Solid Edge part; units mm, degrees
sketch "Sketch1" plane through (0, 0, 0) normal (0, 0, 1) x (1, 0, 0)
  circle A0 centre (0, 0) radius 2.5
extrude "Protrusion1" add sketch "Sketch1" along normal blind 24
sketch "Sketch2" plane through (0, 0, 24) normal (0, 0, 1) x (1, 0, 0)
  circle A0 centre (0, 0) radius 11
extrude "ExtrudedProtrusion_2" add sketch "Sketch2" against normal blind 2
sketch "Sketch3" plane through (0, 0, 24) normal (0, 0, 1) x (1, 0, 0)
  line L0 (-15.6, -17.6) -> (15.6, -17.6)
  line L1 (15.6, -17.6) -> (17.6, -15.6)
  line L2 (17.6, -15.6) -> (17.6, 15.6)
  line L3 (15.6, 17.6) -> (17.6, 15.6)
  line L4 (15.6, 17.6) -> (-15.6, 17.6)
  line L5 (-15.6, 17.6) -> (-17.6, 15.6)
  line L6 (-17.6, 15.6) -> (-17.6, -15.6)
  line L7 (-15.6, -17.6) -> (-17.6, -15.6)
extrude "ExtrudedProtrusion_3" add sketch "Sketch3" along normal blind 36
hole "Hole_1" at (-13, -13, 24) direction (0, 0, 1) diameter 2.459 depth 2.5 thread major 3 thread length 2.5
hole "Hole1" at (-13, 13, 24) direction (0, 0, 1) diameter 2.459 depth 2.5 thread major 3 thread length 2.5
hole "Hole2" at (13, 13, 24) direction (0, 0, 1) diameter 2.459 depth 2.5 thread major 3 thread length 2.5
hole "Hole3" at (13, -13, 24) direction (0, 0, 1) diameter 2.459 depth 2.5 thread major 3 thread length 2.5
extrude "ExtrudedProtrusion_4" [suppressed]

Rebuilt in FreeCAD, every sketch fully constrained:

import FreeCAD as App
import Part
import Sketcher


def add_polygon(sketch, points):
    """Adds a closed chain of lines whose ends are joined by coincident constraints."""
    first, n = sketch.GeometryCount, len(points)
    for a, b in zip(points, points[1:] + points[:1]):
        sketch.addGeometry(Part.LineSegment(App.Vector(*a, 0), App.Vector(*b, 0)), False)
    for i in range(n):
        sketch.addConstraint(Sketcher.Constraint("Coincident", first + i, 2, first + (i + 1) % n, 1))

doc = App.newDocument("Part")
body = doc.addObject("PartDesign::Body", "Body")

sketch1 = body.newObject("Sketcher::SketchObject", "Sketch")
sketch1.AttachmentSupport = (doc.getObject("XY_Plane"), [""])
sketch1.MapMode = "FlatFace"
sketch1.addGeometry(Part.Circle(App.Vector(0, 0, 0), App.Vector(0, 0, 1), 2.5), False)
sketch1.addConstraint([
    Sketcher.Constraint("Coincident", 0, 3, -1, 1),
    Sketcher.Constraint("Diameter", 0, 5.0),
])
pad1 = body.newObject("PartDesign::Pad", "Pad")
pad1.Profile = sketch1
pad1.Length = 24

sketch2 = body.newObject("Sketcher::SketchObject", "Sketch001")
sketch2.AttachmentSupport = (doc.getObject("XY_Plane"), [""])
sketch2.MapMode = "FlatFace"
sketch2.AttachmentOffset = App.Placement(App.Vector(0, 0, 24), App.Rotation())
sketch2.addGeometry(Part.Circle(App.Vector(0, 0, 0), App.Vector(0, 0, 1), 11), False)
sketch2.addConstraint([
    Sketcher.Constraint("Coincident", 0, 3, -1, 1),
    Sketcher.Constraint("Diameter", 0, 22.0),
])
pad2 = body.newObject("PartDesign::Pad", "Pad001")
pad2.Profile = sketch2
pad2.Length = 2
pad2.Reversed = True

sketch3 = body.newObject("Sketcher::SketchObject", "Sketch002")
sketch3.AttachmentSupport = (doc.getObject("XY_Plane"), [""])
sketch3.MapMode = "FlatFace"
sketch3.AttachmentOffset = App.Placement(App.Vector(0, 0, 24), App.Rotation())
add_polygon(sketch3, [(-17.6, -15.6), (-15.6, -17.6), (15.6, -17.6), (17.6, -15.6), (17.6, 15.6), (15.6, 17.6), (-15.6, 17.6), (-17.6, 15.6)])
sketch3.addConstraint([
    Sketcher.Constraint("Horizontal", 1),
    Sketcher.Constraint("Vertical", 3),
    Sketcher.Constraint("Horizontal", 5),
    Sketcher.Constraint("Vertical", 7),
    Sketcher.Constraint("Symmetric", 0, 2, 4, 2, -1, 1),
    Sketcher.Constraint("Symmetric", 2, 2, 6, 2, -1, 1),
    Sketcher.Constraint("Perpendicular", 0, 2),
    Sketcher.Constraint("Perpendicular", 2, 4),
    Sketcher.Constraint("Perpendicular", 4, 6),
    Sketcher.Constraint("Horizontal", 3, 2, 6, 2),
    Sketcher.Constraint("Vertical", 1, 2, 4, 2),
    Sketcher.Constraint("Equal", 5, 3),
    Sketcher.Constraint("DistanceX", 1, 1, 1, 2, 31.2),
    Sketcher.Constraint("DistanceX", 1, 2, 2, 2, 2.0),
])
pad3 = body.newObject("PartDesign::Pad", "Pad002")
pad3.Profile = sketch3
pad3.Length = 36

sketch4 = body.newObject("Sketcher::SketchObject", "Sketch003")
sketch4.AttachmentSupport = (doc.getObject("XY_Plane"), [""])
sketch4.MapMode = "FlatFace"
sketch4.AttachmentOffset = App.Placement(App.Vector(0, 0, 24), App.Rotation())
sketch4.addGeometry(Part.Circle(App.Vector(-13, -13, 0), App.Vector(0, 0, 1), 1.2295), False)
sketch4.addConstraint([
    Sketcher.Constraint("Diameter", 0, 2.459),
    Sketcher.Constraint("DistanceX", 0, 3, -1, 1, 13.0),
    Sketcher.Constraint("DistanceY", 0, 3, -1, 1, 13.0),
])
doc.recompute()
hole = body.newObject("PartDesign::Hole", "Hole")
hole.Profile = sketch4
hole.ThreadType = "None"
hole.Diameter = 2.459
hole.DepthType = "Dimension"
hole.Depth = 2.5
hole.DrillPoint = "Flat"
hole.Reversed = True

sketch5 = body.newObject("Sketcher::SketchObject", "Sketch004")
sketch5.AttachmentSupport = (doc.getObject("XY_Plane"), [""])
sketch5.MapMode = "FlatFace"
sketch5.AttachmentOffset = App.Placement(App.Vector(0, 0, 24), App.Rotation())
sketch5.addGeometry(Part.Circle(App.Vector(-13, 13, 0), App.Vector(0, 0, 1), 1.2295), False)
sketch5.addConstraint([
    Sketcher.Constraint("Diameter", 0, 2.459),
    Sketcher.Constraint("DistanceX", 0, 3, -1, 1, 13.0),
    Sketcher.Constraint("DistanceY", -1, 1, 0, 3, 13.0),
])
doc.recompute()
hole2 = body.newObject("PartDesign::Hole", "Hole001")
hole2.Profile = sketch5
hole2.ThreadType = "None"
hole2.Diameter = 2.459
hole2.DepthType = "Dimension"
hole2.Depth = 2.5
hole2.DrillPoint = "Flat"
hole2.Reversed = True

sketch6 = body.newObject("Sketcher::SketchObject", "Sketch005")
sketch6.AttachmentSupport = (doc.getObject("XY_Plane"), [""])
sketch6.MapMode = "FlatFace"
sketch6.AttachmentOffset = App.Placement(App.Vector(0, 0, 24), App.Rotation())
sketch6.addGeometry(Part.Circle(App.Vector(13, 13, 0), App.Vector(0, 0, 1), 1.2295), False)
sketch6.addConstraint([
    Sketcher.Constraint("Diameter", 0, 2.459),
    Sketcher.Constraint("DistanceX", -1, 1, 0, 3, 13.0),
    Sketcher.Constraint("DistanceY", -1, 1, 0, 3, 13.0),
])
doc.recompute()
hole3 = body.newObject("PartDesign::Hole", "Hole002")
hole3.Profile = sketch6
hole3.ThreadType = "None"
hole3.Diameter = 2.459
hole3.DepthType = "Dimension"
hole3.Depth = 2.5
hole3.DrillPoint = "Flat"
hole3.Reversed = True

sketch7 = body.newObject("Sketcher::SketchObject", "Sketch006")
sketch7.AttachmentSupport = (doc.getObject("XY_Plane"), [""])
sketch7.MapMode = "FlatFace"
sketch7.AttachmentOffset = App.Placement(App.Vector(0, 0, 24), App.Rotation())
sketch7.addGeometry(Part.Circle(App.Vector(13, -13, 0), App.Vector(0, 0, 1), 1.2295), False)
sketch7.addConstraint([
    Sketcher.Constraint("Diameter", 0, 2.459),
    Sketcher.Constraint("DistanceX", -1, 1, 0, 3, 13.0),
    Sketcher.Constraint("DistanceY", 0, 3, -1, 1, 13.0),
])
doc.recompute()
hole4 = body.newObject("PartDesign::Hole", "Hole003")
hole4.Profile = sketch7
hole4.ThreadType = "None"
hole4.Diameter = 2.459
hole4.DepthType = "Dimension"
hole4.Depth = 2.5
hole4.DrillPoint = "Flat"
hole4.Reversed = True

doc.recompute()
